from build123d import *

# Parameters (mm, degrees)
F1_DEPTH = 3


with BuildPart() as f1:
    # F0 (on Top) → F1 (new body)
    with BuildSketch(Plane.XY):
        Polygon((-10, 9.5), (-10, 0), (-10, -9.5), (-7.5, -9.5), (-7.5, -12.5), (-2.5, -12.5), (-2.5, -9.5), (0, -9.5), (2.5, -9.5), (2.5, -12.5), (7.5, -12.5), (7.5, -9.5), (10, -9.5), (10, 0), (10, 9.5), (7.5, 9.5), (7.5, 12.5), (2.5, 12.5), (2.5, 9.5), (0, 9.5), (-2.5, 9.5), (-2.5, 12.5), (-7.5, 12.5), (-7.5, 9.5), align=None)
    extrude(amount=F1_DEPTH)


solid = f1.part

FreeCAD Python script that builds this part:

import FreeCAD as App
import Part
import Sketcher

V = App.Vector
Q = App.Units.Quantity


def add_polygon(sketch, points):
    """Adds a closed chain of lines whose ends are joined by coincident constraints."""
    first, n = sketch.GeometryCount, len(points)
    for a, b in zip(points, points[1:] + points[:1]):
        sketch.addGeometry(Part.LineSegment(App.Vector(*a, 0), App.Vector(*b, 0)), False)
    for i in range(n):
        sketch.addConstraint(Sketcher.Constraint("Coincident", first + i, 2, first + (i + 1) % n, 1))

doc = App.newDocument("Part")
body = doc.addObject("PartDesign::Body", "Body")

sketch1 = body.newObject("Sketcher::SketchObject", "Sketch")
sketch1.AttachmentSupport = (doc.getObject("XY_Plane"), [""])
sketch1.MapMode = "FlatFace"
add_polygon(sketch1, [(-10, 9.5), (-10, -9.5), (-7.5, -9.5), (-7.5, -12.5), (-2.5, -12.5), (-2.5, -9.5), (2.5, -9.5), (2.5, -12.5), (7.5, -12.5), (7.5, -9.5), (10, -9.5), (10, 9.5), (7.5, 9.5), (7.5, 12.5), (2.5, 12.5), (2.5, 9.5), (-2.5, 9.5), (-2.5, 12.5), (-7.5, 12.5), (-7.5, 9.5)])
sketch1.addConstraint([
    Sketcher.Constraint("Vertical", 0),
    Sketcher.Constraint("Horizontal", 1),
    Sketcher.Constraint("Vertical", 2),
    Sketcher.Constraint("Horizontal", 3),
    Sketcher.Constraint("Vertical", 4),
    Sketcher.Constraint("Horizontal", 5),
    Sketcher.Constraint("Vertical", 6),
    Sketcher.Constraint("Horizontal", 7),
    Sketcher.Constraint("Vertical", 8),
    Sketcher.Constraint("Horizontal", 9),
    Sketcher.Constraint("Vertical", 10),
    Sketcher.Constraint("Horizontal", 11),
    Sketcher.Constraint("Vertical", 12),
    Sketcher.Constraint("Horizontal", 13),
    Sketcher.Constraint("Vertical", 14),
    Sketcher.Constraint("Horizontal", 15),
    Sketcher.Constraint("Vertical", 16),
    Sketcher.Constraint("Horizontal", 17),
    Sketcher.Constraint("Vertical", 18),
    Sketcher.Constraint("Horizontal", 19),
    Sketcher.Constraint("Symmetric", 0, 2, 10, 2, -1, 1),
    Sketcher.Constraint("Symmetric", 2, 2, 12, 2, -1, 1),
    Sketcher.Constraint("Symmetric", 4, 2, 14, 2, -1, 1),
    Sketcher.Constraint("Symmetric", 6, 2, 16, 2, -1, 1),
    Sketcher.Constraint("Symmetric", 8, 2, 18, 2, -1, 1),
    Sketcher.Constraint("Symmetric", 3, 2, 6, 2, -2),
    Sketcher.Constraint("Symmetric", 1, 2, 8, 2, -2),
    Sketcher.Constraint("Horizontal", 1, 2, 4, 2),
    Sketcher.Constraint("Equal", 3, 5),
    Sketcher.Constraint("DistanceX", 3, 1, 3, 2, Q("5 mm")),
    Sketcher.Constraint("DistanceY", 0, 2, 0, 1, Q("19 mm")),
    Sketcher.Constraint("DistanceY", 2, 2, 2, 1, Q("3 mm")),
    Sketcher.Constraint("DistanceX", 1, 1, 1, 2, Q("2.5 mm")),
])
pad1 = body.newObject("PartDesign::Pad", "Pad")
pad1.Profile = sketch1
pad1.Length = 3

doc.recompute()
